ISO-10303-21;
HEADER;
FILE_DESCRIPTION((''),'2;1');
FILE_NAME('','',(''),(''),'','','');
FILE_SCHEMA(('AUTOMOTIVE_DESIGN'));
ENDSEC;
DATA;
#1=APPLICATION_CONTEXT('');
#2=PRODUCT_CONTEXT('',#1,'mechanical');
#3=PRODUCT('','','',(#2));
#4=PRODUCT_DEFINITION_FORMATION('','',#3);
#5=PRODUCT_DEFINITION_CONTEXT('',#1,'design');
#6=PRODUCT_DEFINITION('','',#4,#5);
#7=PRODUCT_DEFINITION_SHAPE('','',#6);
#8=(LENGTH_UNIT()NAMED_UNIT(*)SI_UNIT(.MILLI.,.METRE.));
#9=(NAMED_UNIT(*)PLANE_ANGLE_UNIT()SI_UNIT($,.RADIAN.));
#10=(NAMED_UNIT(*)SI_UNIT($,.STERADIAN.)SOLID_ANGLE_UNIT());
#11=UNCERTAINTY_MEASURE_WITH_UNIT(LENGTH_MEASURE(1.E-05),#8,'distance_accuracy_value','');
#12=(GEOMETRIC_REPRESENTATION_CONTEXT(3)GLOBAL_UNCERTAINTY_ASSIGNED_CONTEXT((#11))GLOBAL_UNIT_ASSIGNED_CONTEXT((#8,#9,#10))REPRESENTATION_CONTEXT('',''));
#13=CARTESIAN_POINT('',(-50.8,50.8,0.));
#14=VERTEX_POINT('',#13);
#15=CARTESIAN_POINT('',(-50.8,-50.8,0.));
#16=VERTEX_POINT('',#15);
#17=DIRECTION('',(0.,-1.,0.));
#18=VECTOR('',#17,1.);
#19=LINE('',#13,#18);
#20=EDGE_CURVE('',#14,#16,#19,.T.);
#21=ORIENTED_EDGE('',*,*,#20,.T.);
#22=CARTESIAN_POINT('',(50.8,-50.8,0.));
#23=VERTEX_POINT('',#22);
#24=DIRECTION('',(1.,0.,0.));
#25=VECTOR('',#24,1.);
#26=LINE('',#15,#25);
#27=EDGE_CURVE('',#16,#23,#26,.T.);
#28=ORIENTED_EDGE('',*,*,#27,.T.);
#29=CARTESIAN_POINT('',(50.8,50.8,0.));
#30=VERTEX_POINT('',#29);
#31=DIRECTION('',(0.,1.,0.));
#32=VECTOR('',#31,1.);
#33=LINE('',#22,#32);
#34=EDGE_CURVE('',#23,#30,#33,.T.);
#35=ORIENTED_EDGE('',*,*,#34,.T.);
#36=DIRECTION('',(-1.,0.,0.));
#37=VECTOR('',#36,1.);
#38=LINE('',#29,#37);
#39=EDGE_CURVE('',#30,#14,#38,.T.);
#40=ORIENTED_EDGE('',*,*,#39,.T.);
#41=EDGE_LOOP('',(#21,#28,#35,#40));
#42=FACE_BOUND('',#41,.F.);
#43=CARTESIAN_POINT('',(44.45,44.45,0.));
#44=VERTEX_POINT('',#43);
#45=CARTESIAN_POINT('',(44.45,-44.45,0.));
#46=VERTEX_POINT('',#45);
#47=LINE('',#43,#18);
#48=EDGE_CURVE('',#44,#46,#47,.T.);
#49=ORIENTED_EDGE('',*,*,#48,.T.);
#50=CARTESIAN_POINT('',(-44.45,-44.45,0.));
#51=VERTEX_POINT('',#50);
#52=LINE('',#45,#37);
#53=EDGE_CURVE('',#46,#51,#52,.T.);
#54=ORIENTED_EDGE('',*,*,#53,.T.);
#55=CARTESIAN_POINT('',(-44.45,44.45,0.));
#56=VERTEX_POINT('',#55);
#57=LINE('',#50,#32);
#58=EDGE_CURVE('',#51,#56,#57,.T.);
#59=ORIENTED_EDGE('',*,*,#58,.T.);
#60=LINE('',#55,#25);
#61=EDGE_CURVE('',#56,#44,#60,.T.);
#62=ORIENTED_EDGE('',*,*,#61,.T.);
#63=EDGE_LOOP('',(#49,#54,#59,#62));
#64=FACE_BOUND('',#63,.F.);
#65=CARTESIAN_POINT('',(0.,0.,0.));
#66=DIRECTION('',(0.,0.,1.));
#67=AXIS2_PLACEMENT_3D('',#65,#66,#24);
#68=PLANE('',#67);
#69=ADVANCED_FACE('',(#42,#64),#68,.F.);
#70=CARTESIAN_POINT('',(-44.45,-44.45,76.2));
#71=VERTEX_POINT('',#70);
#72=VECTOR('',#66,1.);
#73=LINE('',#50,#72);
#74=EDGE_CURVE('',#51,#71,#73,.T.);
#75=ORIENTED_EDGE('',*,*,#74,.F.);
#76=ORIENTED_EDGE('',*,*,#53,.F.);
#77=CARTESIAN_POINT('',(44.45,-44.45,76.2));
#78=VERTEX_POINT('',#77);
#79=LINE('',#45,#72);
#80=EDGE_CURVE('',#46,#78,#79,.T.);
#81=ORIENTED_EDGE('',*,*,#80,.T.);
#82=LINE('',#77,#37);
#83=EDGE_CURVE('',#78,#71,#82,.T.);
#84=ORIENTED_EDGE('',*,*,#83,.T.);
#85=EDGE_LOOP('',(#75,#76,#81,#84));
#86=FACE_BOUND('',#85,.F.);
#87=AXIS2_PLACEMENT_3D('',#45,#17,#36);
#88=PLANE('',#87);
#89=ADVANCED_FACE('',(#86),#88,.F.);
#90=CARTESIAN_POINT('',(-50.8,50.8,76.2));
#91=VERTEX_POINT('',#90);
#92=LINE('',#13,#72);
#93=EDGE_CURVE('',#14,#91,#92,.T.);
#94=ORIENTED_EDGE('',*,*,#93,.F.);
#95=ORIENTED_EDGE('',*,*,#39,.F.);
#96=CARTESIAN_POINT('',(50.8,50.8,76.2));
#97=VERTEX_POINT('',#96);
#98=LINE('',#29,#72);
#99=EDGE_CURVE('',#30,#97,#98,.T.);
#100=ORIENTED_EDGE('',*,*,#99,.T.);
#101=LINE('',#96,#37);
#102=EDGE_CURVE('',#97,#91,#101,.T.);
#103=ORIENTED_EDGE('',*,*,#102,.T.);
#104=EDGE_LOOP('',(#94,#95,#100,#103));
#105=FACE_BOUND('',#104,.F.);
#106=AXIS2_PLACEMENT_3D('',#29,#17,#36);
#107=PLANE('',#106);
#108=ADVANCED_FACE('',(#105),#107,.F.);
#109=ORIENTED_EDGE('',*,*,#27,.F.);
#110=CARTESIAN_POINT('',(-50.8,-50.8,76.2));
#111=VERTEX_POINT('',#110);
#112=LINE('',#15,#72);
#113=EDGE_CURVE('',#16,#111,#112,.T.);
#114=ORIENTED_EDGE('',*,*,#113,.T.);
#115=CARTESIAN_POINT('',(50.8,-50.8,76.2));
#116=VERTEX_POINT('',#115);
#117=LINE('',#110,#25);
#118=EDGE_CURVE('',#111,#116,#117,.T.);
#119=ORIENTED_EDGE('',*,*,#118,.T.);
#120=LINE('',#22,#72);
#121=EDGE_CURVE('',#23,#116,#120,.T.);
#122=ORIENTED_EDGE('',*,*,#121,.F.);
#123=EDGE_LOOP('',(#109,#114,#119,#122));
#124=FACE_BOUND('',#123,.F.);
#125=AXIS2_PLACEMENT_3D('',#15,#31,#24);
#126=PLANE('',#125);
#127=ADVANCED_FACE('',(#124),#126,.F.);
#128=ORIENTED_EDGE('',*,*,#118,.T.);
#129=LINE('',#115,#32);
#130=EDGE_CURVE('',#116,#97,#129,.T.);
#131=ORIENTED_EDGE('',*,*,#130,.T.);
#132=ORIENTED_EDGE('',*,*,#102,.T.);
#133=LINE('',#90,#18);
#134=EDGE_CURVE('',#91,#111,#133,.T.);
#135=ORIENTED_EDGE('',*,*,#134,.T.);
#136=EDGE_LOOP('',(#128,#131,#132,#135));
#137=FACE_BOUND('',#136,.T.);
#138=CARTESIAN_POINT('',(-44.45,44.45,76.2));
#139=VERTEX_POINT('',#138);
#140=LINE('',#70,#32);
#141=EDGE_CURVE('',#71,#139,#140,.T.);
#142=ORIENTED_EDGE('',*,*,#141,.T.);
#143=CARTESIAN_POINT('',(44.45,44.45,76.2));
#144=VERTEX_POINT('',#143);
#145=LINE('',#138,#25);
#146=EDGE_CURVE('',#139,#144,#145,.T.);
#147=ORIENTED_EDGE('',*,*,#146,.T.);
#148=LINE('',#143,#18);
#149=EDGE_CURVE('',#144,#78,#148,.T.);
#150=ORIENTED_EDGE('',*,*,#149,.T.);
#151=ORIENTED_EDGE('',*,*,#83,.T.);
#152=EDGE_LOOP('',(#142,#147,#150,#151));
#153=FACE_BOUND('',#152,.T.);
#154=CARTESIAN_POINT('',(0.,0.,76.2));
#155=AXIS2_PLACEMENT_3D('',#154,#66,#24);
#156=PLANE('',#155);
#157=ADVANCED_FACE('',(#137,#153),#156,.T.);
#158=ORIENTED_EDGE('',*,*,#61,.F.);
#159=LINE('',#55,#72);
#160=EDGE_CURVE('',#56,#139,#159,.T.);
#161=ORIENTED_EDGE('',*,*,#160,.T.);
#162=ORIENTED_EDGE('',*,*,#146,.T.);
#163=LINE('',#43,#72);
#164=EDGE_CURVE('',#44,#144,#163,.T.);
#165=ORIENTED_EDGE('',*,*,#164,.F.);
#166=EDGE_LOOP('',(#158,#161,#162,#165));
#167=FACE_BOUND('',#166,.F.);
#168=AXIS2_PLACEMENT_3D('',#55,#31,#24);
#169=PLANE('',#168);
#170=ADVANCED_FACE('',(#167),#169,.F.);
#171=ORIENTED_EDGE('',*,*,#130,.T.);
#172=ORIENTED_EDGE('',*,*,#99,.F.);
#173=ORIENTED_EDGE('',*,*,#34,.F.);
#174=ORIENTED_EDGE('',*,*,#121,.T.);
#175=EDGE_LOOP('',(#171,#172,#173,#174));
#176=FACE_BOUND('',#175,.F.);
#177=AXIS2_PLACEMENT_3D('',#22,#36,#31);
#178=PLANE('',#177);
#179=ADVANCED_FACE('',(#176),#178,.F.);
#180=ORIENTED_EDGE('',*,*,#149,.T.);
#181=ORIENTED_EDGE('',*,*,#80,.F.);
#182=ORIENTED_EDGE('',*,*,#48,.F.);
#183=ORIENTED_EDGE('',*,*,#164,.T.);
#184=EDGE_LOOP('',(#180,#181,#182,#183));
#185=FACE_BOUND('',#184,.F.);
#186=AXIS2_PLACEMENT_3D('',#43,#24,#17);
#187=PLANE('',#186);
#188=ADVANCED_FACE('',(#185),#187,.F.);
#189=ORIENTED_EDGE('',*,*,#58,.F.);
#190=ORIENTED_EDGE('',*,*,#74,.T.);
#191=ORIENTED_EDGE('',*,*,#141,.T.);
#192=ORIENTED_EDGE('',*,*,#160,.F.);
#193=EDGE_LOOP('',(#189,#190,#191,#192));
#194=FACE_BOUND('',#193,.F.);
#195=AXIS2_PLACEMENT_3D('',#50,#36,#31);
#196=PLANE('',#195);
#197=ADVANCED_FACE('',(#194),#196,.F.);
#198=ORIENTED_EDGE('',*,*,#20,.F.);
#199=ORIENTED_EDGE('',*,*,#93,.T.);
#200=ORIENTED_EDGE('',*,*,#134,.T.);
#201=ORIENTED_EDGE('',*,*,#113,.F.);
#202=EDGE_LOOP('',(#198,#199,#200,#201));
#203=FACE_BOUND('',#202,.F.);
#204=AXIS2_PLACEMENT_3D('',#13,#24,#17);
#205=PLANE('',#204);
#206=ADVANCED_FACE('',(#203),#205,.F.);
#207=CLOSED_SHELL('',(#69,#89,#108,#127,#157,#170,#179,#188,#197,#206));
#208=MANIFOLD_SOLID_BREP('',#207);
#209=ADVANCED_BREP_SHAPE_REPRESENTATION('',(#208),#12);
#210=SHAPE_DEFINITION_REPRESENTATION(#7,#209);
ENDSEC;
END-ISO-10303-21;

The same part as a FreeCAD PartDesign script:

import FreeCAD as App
import Part
import Sketcher
from FreeCAD import Vector
Q = App.Units.Quantity

doc = App.newDocument("Part")
body = doc.addObject("PartDesign::Body", "Body")

sketch1 = body.newObject("Sketcher::SketchObject", "Sketch")
sketch1.AttachmentSupport = (doc.getObject("XY_Plane"), [""])
sketch1.MapMode = "FlatFace"
sketch1.addGeometry([
    Part.LineSegment(Vector(50.8, -50.8, 0), Vector(50.8, 50.8, 0)),
    Part.LineSegment(Vector(50.8, 50.8, 0), Vector(-50.8, 50.8, 0)),
    Part.LineSegment(Vector(-50.8, 50.8, 0), Vector(-50.8, -50.8, 0)),
    Part.LineSegment(Vector(-50.8, -50.8, 0), Vector(50.8, -50.8, 0)),
    Part.LineSegment(Vector(-44.45, -44.45, 0), Vector(-44.45, 44.45, 0)),
    Part.LineSegment(Vector(-44.45, 44.45, 0), Vector(44.45, 44.45, 0)),
    Part.LineSegment(Vector(44.45, 44.45, 0), Vector(44.45, -44.45, 0)),
    Part.LineSegment(Vector(44.45, -44.45, 0), Vector(-44.45, -44.45, 0)),
], False)
sketch1.addConstraint([
    Sketcher.Constraint("Coincident", 0, 2, 1, 1),
    Sketcher.Constraint("Coincident", 1, 2, 2, 1),
    Sketcher.Constraint("Coincident", 2, 2, 3, 1),
    Sketcher.Constraint("Coincident", 3, 2, 0, 1),
    Sketcher.Constraint("Coincident", 4, 2, 5, 1),
    Sketcher.Constraint("Coincident", 5, 2, 6, 1),
    Sketcher.Constraint("Coincident", 6, 2, 7, 1),
    Sketcher.Constraint("Coincident", 7, 2, 4, 1),
    Sketcher.Constraint("Vertical", 0),
    Sketcher.Constraint("Horizontal", 1),
    Sketcher.Constraint("Vertical", 2),
    Sketcher.Constraint("Horizontal", 3),
    Sketcher.Constraint("Vertical", 4),
    Sketcher.Constraint("Horizontal", 5),
    Sketcher.Constraint("Vertical", 6),
    Sketcher.Constraint("Horizontal", 7),
    Sketcher.Constraint("Symmetric", 0, 2, 2, 2, -1, 1),
    Sketcher.Constraint("Symmetric", 4, 2, 6, 2, -1, 1),
    Sketcher.Constraint("Equal", 3, 0),
    Sketcher.Constraint("Equal", 7, 4),
    Sketcher.Constraint("DistanceX", 1, 2, 1, 1, Q("4 in")),
    Sketcher.Constraint("DistanceX", 5, 1, 5, 2, Q("3.5 in")),
])
pad1 = body.newObject("PartDesign::Pad", "Pad")
pad1.Profile = sketch1
pad1.Length = Q("3 in")

doc.recompute()
